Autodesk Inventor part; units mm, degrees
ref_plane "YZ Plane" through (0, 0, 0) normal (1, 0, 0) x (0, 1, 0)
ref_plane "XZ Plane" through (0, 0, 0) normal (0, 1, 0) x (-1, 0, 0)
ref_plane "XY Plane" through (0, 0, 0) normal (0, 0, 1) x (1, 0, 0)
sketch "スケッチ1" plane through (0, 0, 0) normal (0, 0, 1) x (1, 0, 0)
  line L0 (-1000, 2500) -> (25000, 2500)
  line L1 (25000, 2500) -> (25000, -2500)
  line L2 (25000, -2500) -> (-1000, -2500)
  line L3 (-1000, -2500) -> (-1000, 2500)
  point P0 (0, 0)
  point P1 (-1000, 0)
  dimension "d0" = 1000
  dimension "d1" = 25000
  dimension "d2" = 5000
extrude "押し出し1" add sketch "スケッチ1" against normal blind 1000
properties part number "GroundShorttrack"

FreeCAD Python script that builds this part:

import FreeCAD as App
import Part
import Sketcher
from FreeCAD import Vector
Q = App.Units.Quantity

doc = App.newDocument("Part")
params = doc.addObject("Spreadsheet::Sheet", "Params")
for row, (alias, value) in enumerate([
    ("sketch1_height", "5000 mm"),
    ("pad1_length", "1000 mm"),
], start=1):
    params.set(f"A{row}", alias)
    params.set(f"B{row}", "=" + value)
    params.setAlias(f"B{row}", alias)

body = doc.addObject("PartDesign::Body", "Body")

sketch1 = doc.addObject("Sketcher::SketchObject", "Sketch")
body.addObject(sketch1)
sketch1.AttachmentSupport = (doc.XY_Plane, [""])
sketch1.MapMode = "FlatFace"
sketch1.addGeometry(Part.LineSegment(Vector(25000, 2500, 0), Vector(-1000, 2500, 0)), False)
sketch1.addGeometry(Part.LineSegment(Vector(-1000, 2500, 0), Vector(-1000, -2500, 0)), False)
sketch1.addGeometry(Part.LineSegment(Vector(-1000, -2500, 0), Vector(25000, -2500, 0)), False)
sketch1.addGeometry(Part.LineSegment(Vector(25000, -2500, 0), Vector(25000, 2500, 0)), False)
sketch1.addConstraint(Sketcher.Constraint("Coincident", 0, 2, 1, 1))
sketch1.addConstraint(Sketcher.Constraint("Coincident", 1, 2, 2, 1))
sketch1.addConstraint(Sketcher.Constraint("Coincident", 2, 2, 3, 1))
sketch1.addConstraint(Sketcher.Constraint("Coincident", 3, 2, 0, 1))
sketch1.addConstraint(Sketcher.Constraint("Horizontal", 0))
sketch1.addConstraint(Sketcher.Constraint("Vertical", 1))
sketch1.addConstraint(Sketcher.Constraint("Horizontal", 2))
sketch1.addConstraint(Sketcher.Constraint("Vertical", 3))
sketch1.addConstraint(Sketcher.Constraint("DistanceY", 1, 2, 1, 1, Q("5000 mm")))
sketch1.addConstraint(Sketcher.Constraint("DistanceX", 0, 2, -1, 1, Q("1000 mm")))
sketch1.addConstraint(Sketcher.Constraint("DistanceX", -1, 1, 2, 2, Q("25000 mm")))
sketch1.addConstraint(Sketcher.Constraint("DistanceY", -1, 1, 0, 2, Q("2500 mm")))
sketch1.setExpression("Constraints[8]", "Params.sketch1_height")
pad1 = doc.addObject("PartDesign::Pad", "Pad")
body.addObject(pad1)
pad1.Profile = sketch1
pad1.setExpression("Length", "Params.pad1_length")
pad1.Reversed = True

doc.recompute()
